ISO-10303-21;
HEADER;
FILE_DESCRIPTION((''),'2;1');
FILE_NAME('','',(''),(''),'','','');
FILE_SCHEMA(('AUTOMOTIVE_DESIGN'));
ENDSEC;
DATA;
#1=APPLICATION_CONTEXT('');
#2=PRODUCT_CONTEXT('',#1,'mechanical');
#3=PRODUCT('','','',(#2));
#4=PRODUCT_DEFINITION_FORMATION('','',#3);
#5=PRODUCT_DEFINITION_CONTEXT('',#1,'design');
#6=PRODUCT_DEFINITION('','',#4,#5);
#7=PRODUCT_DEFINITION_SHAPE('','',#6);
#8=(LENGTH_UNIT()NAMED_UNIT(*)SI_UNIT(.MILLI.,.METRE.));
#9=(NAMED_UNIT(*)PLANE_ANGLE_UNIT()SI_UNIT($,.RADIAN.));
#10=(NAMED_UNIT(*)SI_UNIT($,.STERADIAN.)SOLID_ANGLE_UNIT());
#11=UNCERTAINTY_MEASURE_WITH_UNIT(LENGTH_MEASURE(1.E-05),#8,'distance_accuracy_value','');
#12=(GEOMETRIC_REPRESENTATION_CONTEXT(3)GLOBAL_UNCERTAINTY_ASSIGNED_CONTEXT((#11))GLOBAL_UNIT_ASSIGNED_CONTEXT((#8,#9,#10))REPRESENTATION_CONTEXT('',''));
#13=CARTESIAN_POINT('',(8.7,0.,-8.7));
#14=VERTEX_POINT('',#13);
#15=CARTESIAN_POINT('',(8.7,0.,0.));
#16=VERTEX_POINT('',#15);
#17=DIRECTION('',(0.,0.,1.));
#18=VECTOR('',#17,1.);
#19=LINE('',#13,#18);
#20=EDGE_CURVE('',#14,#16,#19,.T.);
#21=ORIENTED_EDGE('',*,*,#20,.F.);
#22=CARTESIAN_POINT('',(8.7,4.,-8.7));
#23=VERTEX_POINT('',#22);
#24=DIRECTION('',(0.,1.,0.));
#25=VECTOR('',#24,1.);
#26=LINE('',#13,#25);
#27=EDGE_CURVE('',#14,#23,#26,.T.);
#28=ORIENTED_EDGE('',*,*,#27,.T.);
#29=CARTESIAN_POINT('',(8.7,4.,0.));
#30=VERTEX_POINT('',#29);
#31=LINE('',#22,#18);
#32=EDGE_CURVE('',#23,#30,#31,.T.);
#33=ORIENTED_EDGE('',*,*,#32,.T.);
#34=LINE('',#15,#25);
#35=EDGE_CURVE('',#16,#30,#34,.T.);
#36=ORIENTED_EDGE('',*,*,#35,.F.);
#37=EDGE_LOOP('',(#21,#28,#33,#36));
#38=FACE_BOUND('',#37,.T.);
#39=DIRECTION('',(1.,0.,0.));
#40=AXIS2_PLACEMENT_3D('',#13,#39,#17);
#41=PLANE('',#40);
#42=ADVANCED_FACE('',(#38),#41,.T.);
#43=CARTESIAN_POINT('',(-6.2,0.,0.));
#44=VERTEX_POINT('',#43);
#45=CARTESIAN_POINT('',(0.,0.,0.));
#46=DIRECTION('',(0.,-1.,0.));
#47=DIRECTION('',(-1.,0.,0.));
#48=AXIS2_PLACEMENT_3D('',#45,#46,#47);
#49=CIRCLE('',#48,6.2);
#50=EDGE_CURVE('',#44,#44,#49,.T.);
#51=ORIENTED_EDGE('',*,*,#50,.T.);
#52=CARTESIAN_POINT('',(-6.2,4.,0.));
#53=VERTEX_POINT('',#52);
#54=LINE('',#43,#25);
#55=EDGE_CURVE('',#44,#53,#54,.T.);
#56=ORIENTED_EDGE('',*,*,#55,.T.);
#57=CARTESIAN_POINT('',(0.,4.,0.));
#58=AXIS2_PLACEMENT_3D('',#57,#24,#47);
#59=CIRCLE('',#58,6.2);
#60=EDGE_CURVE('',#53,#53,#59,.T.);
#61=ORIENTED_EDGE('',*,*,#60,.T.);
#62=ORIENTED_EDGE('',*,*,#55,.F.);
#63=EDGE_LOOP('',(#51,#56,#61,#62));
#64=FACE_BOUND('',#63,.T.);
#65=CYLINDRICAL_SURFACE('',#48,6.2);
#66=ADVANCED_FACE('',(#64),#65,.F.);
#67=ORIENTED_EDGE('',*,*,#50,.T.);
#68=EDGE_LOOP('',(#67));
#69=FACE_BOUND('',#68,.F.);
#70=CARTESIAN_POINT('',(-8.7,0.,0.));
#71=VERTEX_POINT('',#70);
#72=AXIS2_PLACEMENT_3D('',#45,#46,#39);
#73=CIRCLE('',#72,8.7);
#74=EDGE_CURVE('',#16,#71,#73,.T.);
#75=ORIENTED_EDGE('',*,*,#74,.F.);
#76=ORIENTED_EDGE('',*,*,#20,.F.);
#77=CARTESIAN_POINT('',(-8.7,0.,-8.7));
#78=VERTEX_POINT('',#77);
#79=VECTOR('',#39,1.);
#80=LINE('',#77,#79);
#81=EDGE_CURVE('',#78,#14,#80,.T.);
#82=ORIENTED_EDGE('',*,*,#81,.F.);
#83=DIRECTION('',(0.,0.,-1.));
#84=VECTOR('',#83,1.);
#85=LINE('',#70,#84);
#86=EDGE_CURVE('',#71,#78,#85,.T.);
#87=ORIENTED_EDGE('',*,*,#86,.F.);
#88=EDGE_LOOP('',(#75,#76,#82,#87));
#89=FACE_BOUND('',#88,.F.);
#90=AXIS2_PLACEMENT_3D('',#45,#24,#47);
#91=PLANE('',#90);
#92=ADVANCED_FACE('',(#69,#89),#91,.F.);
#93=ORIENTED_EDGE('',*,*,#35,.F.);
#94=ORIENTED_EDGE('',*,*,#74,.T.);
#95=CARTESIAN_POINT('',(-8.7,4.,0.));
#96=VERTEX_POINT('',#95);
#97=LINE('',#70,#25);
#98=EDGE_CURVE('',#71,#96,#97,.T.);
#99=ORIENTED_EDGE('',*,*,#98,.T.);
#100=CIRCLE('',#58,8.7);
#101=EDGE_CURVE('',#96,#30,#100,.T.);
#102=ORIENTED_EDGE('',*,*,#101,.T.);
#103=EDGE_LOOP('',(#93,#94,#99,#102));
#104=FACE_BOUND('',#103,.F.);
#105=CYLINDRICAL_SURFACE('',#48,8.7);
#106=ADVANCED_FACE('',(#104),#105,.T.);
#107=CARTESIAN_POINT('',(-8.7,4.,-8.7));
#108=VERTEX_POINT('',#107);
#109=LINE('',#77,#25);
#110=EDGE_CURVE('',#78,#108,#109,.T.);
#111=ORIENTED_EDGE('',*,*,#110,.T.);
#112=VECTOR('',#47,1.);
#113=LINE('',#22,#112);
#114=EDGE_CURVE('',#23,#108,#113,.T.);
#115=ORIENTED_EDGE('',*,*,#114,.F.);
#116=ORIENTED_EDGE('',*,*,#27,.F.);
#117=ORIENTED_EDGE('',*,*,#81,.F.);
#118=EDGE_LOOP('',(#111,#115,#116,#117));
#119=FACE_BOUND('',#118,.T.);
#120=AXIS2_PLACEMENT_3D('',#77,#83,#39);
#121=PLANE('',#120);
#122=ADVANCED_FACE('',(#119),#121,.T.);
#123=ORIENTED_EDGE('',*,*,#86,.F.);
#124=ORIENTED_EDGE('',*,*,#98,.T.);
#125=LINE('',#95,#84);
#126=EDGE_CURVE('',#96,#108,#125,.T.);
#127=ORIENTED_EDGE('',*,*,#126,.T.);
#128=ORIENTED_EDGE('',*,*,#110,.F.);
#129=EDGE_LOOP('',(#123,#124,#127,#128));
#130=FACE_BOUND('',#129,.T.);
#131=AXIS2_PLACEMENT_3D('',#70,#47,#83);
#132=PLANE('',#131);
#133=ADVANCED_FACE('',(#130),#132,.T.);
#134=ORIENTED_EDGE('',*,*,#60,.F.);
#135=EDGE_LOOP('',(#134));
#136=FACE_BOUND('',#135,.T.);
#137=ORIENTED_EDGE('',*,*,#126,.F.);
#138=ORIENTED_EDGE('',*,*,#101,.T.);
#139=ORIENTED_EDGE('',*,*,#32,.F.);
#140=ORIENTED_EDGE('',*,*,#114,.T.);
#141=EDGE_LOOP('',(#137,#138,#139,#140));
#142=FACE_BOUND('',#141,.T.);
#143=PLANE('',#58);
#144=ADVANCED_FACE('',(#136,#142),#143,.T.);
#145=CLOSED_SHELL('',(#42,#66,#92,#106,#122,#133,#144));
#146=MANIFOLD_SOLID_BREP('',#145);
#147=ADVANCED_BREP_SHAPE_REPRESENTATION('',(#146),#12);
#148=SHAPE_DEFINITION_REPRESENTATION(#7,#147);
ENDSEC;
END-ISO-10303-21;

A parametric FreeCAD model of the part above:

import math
import FreeCAD as App
import Part
import Sketcher
from FreeCAD import Vector
Q = App.Units.Quantity

doc = App.newDocument("Part")
body = doc.addObject("PartDesign::Body", "Body")

# Sketch on XZ plane
sketch1 = doc.addObject("Sketcher::SketchObject", "Sketch")
body.addObject(sketch1)
sketch1.AttachmentSupport = (doc.XZ_Plane, [""])
sketch1.MapMode = "FlatFace"
sketch1.addGeometry([
    Part.ArcOfCircle(Part.Circle(Vector(0, 0, 0), Vector(0, 0, 1), 9), math.radians(0), math.radians(180)),  # 0
    Part.LineSegment(Vector(9, 0, 0), Vector(9, -9, 0)),  # 1
    Part.LineSegment(Vector(9, -9, 0), Vector(-9, -9, 0)),  # 2
    Part.LineSegment(Vector(-9, -9, 0), Vector(-9, 0, 0)),  # 3
    Part.Circle(Vector(0, 0, 0), Vector(0, 0, 1), 6),  # 4
], False)
sketch1.addConstraint([
    Sketcher.Constraint("Tangent", 0, 1, 1, 1),
    Sketcher.Constraint("Coincident", 1, 2, 2, 1),
    Sketcher.Constraint("Coincident", 2, 2, 3, 1),
    Sketcher.Constraint("Tangent", 3, 2, 0, 2),
    Sketcher.Constraint("Vertical", 1),
    Sketcher.Constraint("Horizontal", 2),
    Sketcher.Constraint("Vertical", 3),
    Sketcher.Constraint("Coincident", 0, 3, -1, 1),
    Sketcher.Constraint("Coincident", 4, 3, -1, 1),
    Sketcher.Constraint("Diameter", 4, Q("12.4 mm")),
    Sketcher.Constraint("Radius", 0, Q("8.7 mm")),
    Sketcher.Constraint("DistanceY", 1, 2, 1, 1, Q("8.7 mm")),
])
pad1 = doc.addObject("PartDesign::Pad", "Pad")
body.addObject(pad1)
pad1.Profile = sketch1
pad1.Length = 4
pad1.Reversed = True

doc.recompute()
